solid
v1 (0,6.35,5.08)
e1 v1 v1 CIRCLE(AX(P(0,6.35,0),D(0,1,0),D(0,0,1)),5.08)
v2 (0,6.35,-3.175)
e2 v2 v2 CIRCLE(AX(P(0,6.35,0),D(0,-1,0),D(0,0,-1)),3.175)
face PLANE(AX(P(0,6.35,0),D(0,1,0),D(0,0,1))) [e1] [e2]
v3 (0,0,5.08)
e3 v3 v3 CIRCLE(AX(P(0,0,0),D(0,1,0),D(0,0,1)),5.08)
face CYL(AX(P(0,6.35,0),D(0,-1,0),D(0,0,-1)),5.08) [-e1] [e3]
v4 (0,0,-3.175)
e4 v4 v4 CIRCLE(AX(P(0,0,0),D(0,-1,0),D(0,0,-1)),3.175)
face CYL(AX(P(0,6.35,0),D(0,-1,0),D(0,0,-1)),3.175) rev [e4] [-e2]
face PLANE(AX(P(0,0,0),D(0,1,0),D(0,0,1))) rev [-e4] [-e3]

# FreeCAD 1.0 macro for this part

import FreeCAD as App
import Part
import Sketcher
Q = App.Units.Quantity

doc = App.newDocument("Part")
params = doc.addObject("Spreadsheet::Sheet", "Params")
for row, (alias, value) in enumerate([
    ("sketch1_diameter", "0.4 in"),
    ("pad1_length", "0.25 in"),
    ("sketch2_diameter", "0.25 in"),
], start=1):
    params.set(f"A{row}", alias)
    params.set(f"B{row}", "=" + value)
    params.setAlias(f"B{row}", alias)

body = doc.addObject("PartDesign::Body", "Body")

sketch1 = body.newObject("Sketcher::SketchObject", "Sketch")
sketch1.AttachmentSupport = (doc.getObject("XZ_Plane"), [""])
sketch1.MapMode = "FlatFace"
sketch1.addGeometry(Part.Circle(App.Vector(0, 0, 0), App.Vector(0, 0, 1), 5), False)
sketch1.addConstraint([
    Sketcher.Constraint("Coincident", 0, 3, -1, 1),
    Sketcher.Constraint("Diameter", 0, Q("0.4 in")),
])
sketch1.setExpression("Constraints[1]", "Params.sketch1_diameter")
pad1 = body.newObject("PartDesign::Pad", "Pad")
pad1.Profile = sketch1
pad1.setExpression("Length", "Params.pad1_length")
pad1.Reversed = True

sketch2 = body.newObject("Sketcher::SketchObject", "Sketch001")
sketch2.AttachmentSupport = (doc.getObject("XZ_Plane"), [""])
sketch2.MapMode = "FlatFace"
sketch2.addGeometry(Part.Circle(App.Vector(0, 0, 0), App.Vector(0, 0, 1), 3.2), False)
sketch2.addConstraint([
    Sketcher.Constraint("Coincident", 0, 3, -1, 1),
    Sketcher.Constraint("Diameter", 0, Q("0.25 in")),
])
sketch2.setExpression("Constraints[1]", "Params.sketch2_diameter")
pocket1 = body.newObject("PartDesign::Pocket", "Pocket")
pocket1.Profile = sketch2
pocket1.Type = "ThroughAll"

doc.recompute()
